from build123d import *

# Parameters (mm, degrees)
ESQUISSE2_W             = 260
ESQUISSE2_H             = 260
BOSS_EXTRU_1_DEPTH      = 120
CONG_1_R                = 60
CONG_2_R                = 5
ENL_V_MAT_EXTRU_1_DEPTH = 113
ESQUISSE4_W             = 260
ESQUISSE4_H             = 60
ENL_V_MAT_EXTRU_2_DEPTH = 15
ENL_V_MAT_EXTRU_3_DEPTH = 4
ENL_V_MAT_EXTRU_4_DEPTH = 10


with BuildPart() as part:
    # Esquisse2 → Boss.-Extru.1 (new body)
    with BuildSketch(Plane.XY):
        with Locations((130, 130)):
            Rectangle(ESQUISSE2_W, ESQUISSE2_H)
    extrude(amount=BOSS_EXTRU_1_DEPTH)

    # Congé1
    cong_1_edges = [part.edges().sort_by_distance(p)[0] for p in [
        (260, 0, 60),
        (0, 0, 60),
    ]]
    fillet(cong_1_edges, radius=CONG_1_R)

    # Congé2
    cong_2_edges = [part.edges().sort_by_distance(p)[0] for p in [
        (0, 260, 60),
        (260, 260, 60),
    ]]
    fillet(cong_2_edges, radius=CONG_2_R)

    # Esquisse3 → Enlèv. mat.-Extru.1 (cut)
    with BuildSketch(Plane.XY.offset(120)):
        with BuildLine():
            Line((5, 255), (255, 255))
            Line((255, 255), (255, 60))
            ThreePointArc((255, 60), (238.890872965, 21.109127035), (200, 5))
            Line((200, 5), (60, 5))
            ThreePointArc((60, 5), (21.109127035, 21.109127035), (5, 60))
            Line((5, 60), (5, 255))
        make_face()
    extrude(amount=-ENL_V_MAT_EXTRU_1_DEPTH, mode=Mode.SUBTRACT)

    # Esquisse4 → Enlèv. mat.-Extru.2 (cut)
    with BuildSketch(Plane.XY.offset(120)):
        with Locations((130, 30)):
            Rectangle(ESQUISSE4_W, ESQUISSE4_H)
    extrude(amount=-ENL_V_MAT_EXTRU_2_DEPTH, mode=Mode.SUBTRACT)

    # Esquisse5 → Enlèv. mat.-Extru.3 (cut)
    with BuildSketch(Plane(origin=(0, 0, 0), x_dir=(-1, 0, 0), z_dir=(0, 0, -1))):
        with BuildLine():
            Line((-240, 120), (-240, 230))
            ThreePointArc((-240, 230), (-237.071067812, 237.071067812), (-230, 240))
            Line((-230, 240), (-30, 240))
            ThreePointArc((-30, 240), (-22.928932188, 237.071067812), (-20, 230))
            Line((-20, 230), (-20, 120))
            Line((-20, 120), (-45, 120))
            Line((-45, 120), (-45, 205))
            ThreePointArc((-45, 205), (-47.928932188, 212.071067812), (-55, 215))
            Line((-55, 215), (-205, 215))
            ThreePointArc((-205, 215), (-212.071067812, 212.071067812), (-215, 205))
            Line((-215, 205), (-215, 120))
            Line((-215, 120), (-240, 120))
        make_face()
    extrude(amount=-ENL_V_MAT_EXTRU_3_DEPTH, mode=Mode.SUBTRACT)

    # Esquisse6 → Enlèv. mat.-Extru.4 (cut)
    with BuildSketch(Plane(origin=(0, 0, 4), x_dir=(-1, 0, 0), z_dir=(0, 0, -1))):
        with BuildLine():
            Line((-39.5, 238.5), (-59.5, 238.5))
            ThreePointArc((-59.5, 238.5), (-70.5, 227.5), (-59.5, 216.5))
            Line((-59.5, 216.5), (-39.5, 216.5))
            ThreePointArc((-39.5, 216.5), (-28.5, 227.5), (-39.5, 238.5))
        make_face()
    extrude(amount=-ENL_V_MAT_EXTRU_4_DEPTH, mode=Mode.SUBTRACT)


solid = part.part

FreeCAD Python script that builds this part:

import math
import FreeCAD as App
import Part
import Sketcher

V = App.Vector


def edges_at(feature, points):
    """Names of the edges that pass closest to the given points."""
    edges = feature.Shape.Edges
    near = lambda p: min(range(len(edges)), key=lambda i: edges[i].distToShape(Part.Vertex(*p))[0])
    return sorted({f"Edge{near(p) + 1}" for p in points})


def add_polygon(sketch, points):
    """Adds a closed chain of lines whose ends are joined by coincident constraints."""
    first, n = sketch.GeometryCount, len(points)
    for a, b in zip(points, points[1:] + points[:1]):
        sketch.addGeometry(Part.LineSegment(App.Vector(*a, 0), App.Vector(*b, 0)), False)
    for i in range(n):
        sketch.addConstraint(Sketcher.Constraint("Coincident", first + i, 2, first + (i + 1) % n, 1))

doc = App.newDocument("Part")
body = doc.addObject("PartDesign::Body", "Body")

sketch1 = body.newObject("Sketcher::SketchObject", "Sketch")
sketch1.AttachmentSupport = (doc.getObject("XY_Plane"), [""])
sketch1.MapMode = "FlatFace"
add_polygon(sketch1, [(0, 260), (0, 0), (260, 0), (260, 260)])
sketch1.addConstraint([
    Sketcher.Constraint("Vertical", 0),
    Sketcher.Constraint("Horizontal", 1),
    Sketcher.Constraint("Vertical", 2),
    Sketcher.Constraint("Horizontal", 3),
    Sketcher.Constraint("Coincident", 0, 2, -1, 1),
    Sketcher.Constraint("Equal", 3, 0),
    Sketcher.Constraint("DistanceX", 1, 1, 1, 2, 260.0),
])
pad1 = body.newObject("PartDesign::Pad", "Pad")
pad1.Profile = sketch1
pad1.Length = 120
doc.recompute()

fillet = body.newObject("PartDesign::Fillet", "Fillet")
fillet.Base = (pad1, edges_at(pad1, [(260, 0, 60), (0, 0, 60)]))
fillet.Radius = 60
doc.recompute()

fillet2 = body.newObject("PartDesign::Fillet", "Fillet001")
fillet2.Base = (fillet, edges_at(fillet, [(0, 260, 60), (260, 260, 60)]))
fillet2.Radius = 5

sketch2 = body.newObject("Sketcher::SketchObject", "Sketch001")
sketch2.AttachmentSupport = (doc.getObject("XY_Plane"), [""])
sketch2.MapMode = "FlatFace"
sketch2.AttachmentOffset = App.Placement(V(0, 0, 120), App.Rotation())
sketch2.addGeometry([
    Part.LineSegment(V(255, 255, 0), V(5, 255, 0)),
    Part.LineSegment(V(5, 255, 0), V(5, 60, 0)),
    Part.ArcOfCircle(Part.Circle(V(60, 60, 0), V(0, 0, 1), 55), math.radians(-180), math.radians(-90)),
    Part.LineSegment(V(60, 5, 0), V(200, 5, 0)),
    Part.ArcOfCircle(Part.Circle(V(200, 60, 0), V(0, 0, 1), 55), math.radians(-90), math.radians(0)),
    Part.LineSegment(V(255, 60, 0), V(255, 255, 0)),
], False)
sketch2.addConstraint([
    Sketcher.Constraint("Coincident", 0, 2, 1, 1),
    Sketcher.Constraint("Tangent", 1, 2, 2, 1),
    Sketcher.Constraint("Tangent", 2, 2, 3, 1),
    Sketcher.Constraint("Tangent", 3, 2, 4, 1),
    Sketcher.Constraint("Tangent", 4, 2, 5, 1),
    Sketcher.Constraint("Coincident", 5, 2, 0, 1),
    Sketcher.Constraint("Horizontal", 0),
    Sketcher.Constraint("Vertical", 1),
    Sketcher.Constraint("Horizontal", 3),
    Sketcher.Constraint("Vertical", 5),
    Sketcher.Constraint("Equal", 2, 4),
    Sketcher.Constraint("Radius", 2, 55.0),
    Sketcher.Constraint("DistanceX", 0, 2, 0, 1, 250.0),
    Sketcher.Constraint("DistanceY", 1, 2, 1, 1, 195.0),
    Sketcher.Constraint("DistanceX", -1, 1, 2, 3, 60.0),
    Sketcher.Constraint("DistanceY", -1, 1, 2, 3, 60.0),
])
pocket1 = body.newObject("PartDesign::Pocket", "Pocket")
pocket1.Profile = sketch2
pocket1.Length = 113

sketch3 = body.newObject("Sketcher::SketchObject", "Sketch002")
sketch3.AttachmentSupport = (doc.getObject("XY_Plane"), [""])
sketch3.MapMode = "FlatFace"
sketch3.AttachmentOffset = App.Placement(V(0, 0, 120), App.Rotation())
add_polygon(sketch3, [(0, 60), (0, 0), (260, 0), (260, 60)])
sketch3.addConstraint([
    Sketcher.Constraint("Vertical", 0),
    Sketcher.Constraint("Horizontal", 1),
    Sketcher.Constraint("Vertical", 2),
    Sketcher.Constraint("Horizontal", 3),
    Sketcher.Constraint("Coincident", 0, 2, -1, 1),
    Sketcher.Constraint("DistanceX", 1, 1, 1, 2, 260.0),
    Sketcher.Constraint("DistanceY", 0, 2, 0, 1, 60.0),
])
pocket2 = body.newObject("PartDesign::Pocket", "Pocket001")
pocket2.Profile = sketch3
pocket2.Length = 15

sketch4 = body.newObject("Sketcher::SketchObject", "Sketch003")
sketch4.AttachmentSupport = (doc.getObject("XY_Plane"), [""])
sketch4.MapMode = "FlatFace"
sketch4.addGeometry([
    Part.LineSegment(V(240, 230, 0), V(240, 120, 0)),
    Part.LineSegment(V(240, 120, 0), V(215, 120, 0)),
    Part.LineSegment(V(215, 120, 0), V(215, 205, 0)),
    Part.ArcOfCircle(Part.Circle(V(205, 205, 0), V(0, 0, 1), 10), math.radians(0), math.radians(90)),
    Part.LineSegment(V(205, 215, 0), V(55, 215, 0)),
    Part.ArcOfCircle(Part.Circle(V(55, 205, 0), V(0, 0, 1), 10), math.radians(90), math.radians(180)),
    Part.LineSegment(V(45, 205, 0), V(45, 120, 0)),
    Part.LineSegment(V(45, 120, 0), V(20, 120, 0)),
    Part.LineSegment(V(20, 120, 0), V(20, 230, 0)),
    Part.ArcOfCircle(Part.Circle(V(30, 230, 0), V(0, 0, 1), 10), math.radians(90), math.radians(180)),
    Part.LineSegment(V(30, 240, 0), V(230, 240, 0)),
    Part.ArcOfCircle(Part.Circle(V(230, 230, 0), V(0, 0, 1), 10), math.radians(0), math.radians(90)),
], False)
sketch4.addConstraint([
    Sketcher.Constraint("Coincident", 0, 2, 1, 1),
    Sketcher.Constraint("Coincident", 1, 2, 2, 1),
    Sketcher.Constraint("Tangent", 2, 2, 3, 1),
    Sketcher.Constraint("Tangent", 3, 2, 4, 1),
    Sketcher.Constraint("Tangent", 4, 2, 5, 1),
    Sketcher.Constraint("Tangent", 5, 2, 6, 1),
    Sketcher.Constraint("Coincident", 6, 2, 7, 1),
    Sketcher.Constraint("Coincident", 7, 2, 8, 1),
    Sketcher.Constraint("Tangent", 8, 2, 9, 2),
    Sketcher.Constraint("Tangent", 9, 1, 10, 1),
    Sketcher.Constraint("Tangent", 10, 2, 11, 2),
    Sketcher.Constraint("Tangent", 11, 1, 0, 1),
    Sketcher.Constraint("Vertical", 0),
    Sketcher.Constraint("Horizontal", 1),
    Sketcher.Constraint("Vertical", 2),
    Sketcher.Constraint("Horizontal", 4),
    Sketcher.Constraint("Vertical", 6),
    Sketcher.Constraint("Horizontal", 7),
    Sketcher.Constraint("Vertical", 8),
    Sketcher.Constraint("Horizontal", 10),
    Sketcher.Constraint("Equal", 3, 5),
    Sketcher.Constraint("Equal", 5, 9),
    Sketcher.Constraint("Equal", 9, 11),
    Sketcher.Constraint("Horizontal", 1, 2, 6, 2),
    Sketcher.Constraint("Equal", 1, 7),
    Sketcher.Constraint("Radius", 3, 10.0),
    Sketcher.Constraint("DistanceX", 1, 2, 1, 1, 25.0),
    Sketcher.Constraint("DistanceX", 4, 2, 4, 1, 150.0),
    Sketcher.Constraint("DistanceY", 0, 2, 0, 1, 110.0),
    Sketcher.Constraint("DistanceY", 2, 1, 2, 2, 85.0),
    Sketcher.Constraint("DistanceX", -1, 1, 3, 3, 205.0),
    Sketcher.Constraint("DistanceY", -1, 1, 3, 3, 205.0),
])
pocket3 = body.newObject("PartDesign::Pocket", "Pocket002")
pocket3.Profile = sketch4
pocket3.Length = 4
pocket3.Reversed = True

sketch5 = body.newObject("Sketcher::SketchObject", "Sketch004")
sketch5.AttachmentSupport = (doc.getObject("XY_Plane"), [""])
sketch5.MapMode = "FlatFace"
sketch5.AttachmentOffset = App.Placement(V(0, 0, 4), App.Rotation())
sketch5.addGeometry([
    Part.LineSegment(V(40, 238, 0), V(60, 238, 0)),
    Part.ArcOfCircle(Part.Circle(V(60, 228, 0), V(0, 0, 1), 11), math.radians(-90), math.radians(90)),
    Part.LineSegment(V(60, 216, 0), V(40, 216, 0)),
    Part.ArcOfCircle(Part.Circle(V(40, 228, 0), V(0, 0, 1), 11), math.radians(90), math.radians(270)),
], False)
sketch5.addConstraint([
    Sketcher.Constraint("Tangent", 0, 2, 1, 2),
    Sketcher.Constraint("Tangent", 1, 1, 2, 1),
    Sketcher.Constraint("Tangent", 2, 2, 3, 2),
    Sketcher.Constraint("Tangent", 3, 1, 0, 1),
    Sketcher.Constraint("Horizontal", 0),
    Sketcher.Constraint("Horizontal", 2),
    Sketcher.Constraint("Radius", 1, 11.0),
    Sketcher.Constraint("DistanceX", 0, 1, 0, 2, 20.0),
    Sketcher.Constraint("DistanceX", -1, 1, 1, 3, 59.5),
    Sketcher.Constraint("DistanceY", -1, 1, 1, 3, 227.5),
])
pocket4 = body.newObject("PartDesign::Pocket", "Pocket003")
pocket4.Profile = sketch5
pocket4.Length = 10
pocket4.Reversed = True

doc.recompute()
